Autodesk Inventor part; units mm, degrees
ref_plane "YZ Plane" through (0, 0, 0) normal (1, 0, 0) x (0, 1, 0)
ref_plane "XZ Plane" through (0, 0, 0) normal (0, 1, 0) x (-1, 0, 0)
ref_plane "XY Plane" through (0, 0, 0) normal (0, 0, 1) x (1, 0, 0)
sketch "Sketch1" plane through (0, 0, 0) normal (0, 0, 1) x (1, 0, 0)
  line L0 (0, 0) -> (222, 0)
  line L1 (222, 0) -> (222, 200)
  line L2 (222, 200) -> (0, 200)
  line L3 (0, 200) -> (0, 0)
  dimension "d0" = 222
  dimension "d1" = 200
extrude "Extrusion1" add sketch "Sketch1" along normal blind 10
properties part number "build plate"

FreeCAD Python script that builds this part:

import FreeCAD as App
import Part
import Sketcher
Q = App.Units.Quantity


def add_polygon(sketch, points):
    """Adds a closed chain of lines whose ends are joined by coincident constraints."""
    first, n = sketch.GeometryCount, len(points)
    for a, b in zip(points, points[1:] + points[:1]):
        sketch.addGeometry(Part.LineSegment(App.Vector(*a, 0), App.Vector(*b, 0)), False)
    for i in range(n):
        sketch.addConstraint(Sketcher.Constraint("Coincident", first + i, 2, first + (i + 1) % n, 1))

doc = App.newDocument("Part")
body = doc.addObject("PartDesign::Body", "Body")

# Sketch on XY plane
sketch1 = body.newObject("Sketcher::SketchObject", "Sketch")
sketch1.AttachmentSupport = (doc.getObject("XY_Plane"), [""])
sketch1.MapMode = "FlatFace"
add_polygon(sketch1, [(0, 200), (0, 0), (222, 0), (222, 200)])  # lines 0-3
sketch1.addConstraint([
    Sketcher.Constraint("Vertical", 0),
    Sketcher.Constraint("Horizontal", 1),
    Sketcher.Constraint("Vertical", 2),
    Sketcher.Constraint("Horizontal", 3),
    Sketcher.Constraint("Coincident", 0, 2, -1, 1),
    Sketcher.Constraint("DistanceX", 1, 1, 1, 2, Q("222 mm")),
    Sketcher.Constraint("DistanceY", 0, 2, 0, 1, Q("200 mm")),
])
pad1 = body.newObject("PartDesign::Pad", "Pad")
pad1.Profile = sketch1
pad1.Length = 10

doc.recompute()
